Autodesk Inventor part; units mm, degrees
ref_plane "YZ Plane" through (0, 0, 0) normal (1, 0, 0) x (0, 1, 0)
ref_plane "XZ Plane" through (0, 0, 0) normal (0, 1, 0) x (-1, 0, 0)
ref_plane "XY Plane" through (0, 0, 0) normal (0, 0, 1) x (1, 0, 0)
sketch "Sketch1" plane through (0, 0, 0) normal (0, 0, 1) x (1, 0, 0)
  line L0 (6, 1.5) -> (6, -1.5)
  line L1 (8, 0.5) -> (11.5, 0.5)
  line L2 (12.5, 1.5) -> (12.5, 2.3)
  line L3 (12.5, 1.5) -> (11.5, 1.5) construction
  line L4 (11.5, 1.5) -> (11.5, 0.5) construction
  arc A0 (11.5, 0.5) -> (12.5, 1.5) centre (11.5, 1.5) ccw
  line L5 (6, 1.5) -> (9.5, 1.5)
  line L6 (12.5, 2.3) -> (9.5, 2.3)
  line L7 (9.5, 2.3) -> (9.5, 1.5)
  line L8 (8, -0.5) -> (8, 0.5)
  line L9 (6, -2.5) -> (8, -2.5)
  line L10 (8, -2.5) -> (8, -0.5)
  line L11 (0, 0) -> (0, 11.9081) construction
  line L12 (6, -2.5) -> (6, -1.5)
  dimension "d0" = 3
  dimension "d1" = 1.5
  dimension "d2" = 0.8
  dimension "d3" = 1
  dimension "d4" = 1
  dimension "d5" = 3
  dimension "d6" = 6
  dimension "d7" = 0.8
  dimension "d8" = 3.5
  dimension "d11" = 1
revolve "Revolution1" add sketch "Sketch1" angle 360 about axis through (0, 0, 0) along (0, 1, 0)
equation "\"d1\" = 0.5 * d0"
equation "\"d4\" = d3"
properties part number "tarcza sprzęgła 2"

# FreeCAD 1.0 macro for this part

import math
import FreeCAD as App
import Part
import Sketcher
Q = App.Units.Quantity

doc = App.newDocument("Part")
body = doc.addObject("PartDesign::Body", "Body")

sketch1 = body.newObject("Sketcher::SketchObject", "Sketch")
sketch1.AttachmentSupport = (doc.getObject("XY_Plane"), [""])
sketch1.MapMode = "FlatFace"
sketch1.addGeometry([
    Part.LineSegment(App.Vector(9.5, 1.5, 0), App.Vector(6, 1.5, 0)),
    Part.LineSegment(App.Vector(6, 1.5, 0), App.Vector(6, -2.5, 0)),
    Part.LineSegment(App.Vector(6, -2.5, 0), App.Vector(8, -2.5, 0)),
    Part.LineSegment(App.Vector(8, -2.5, 0), App.Vector(8, 0.5, 0)),
    Part.LineSegment(App.Vector(8, 0.5, 0), App.Vector(11.5, 0.5, 0)),
    Part.ArcOfCircle(Part.Circle(App.Vector(11.5, 1.5, 0), App.Vector(0, 0, 1), 1), math.radians(-90), math.radians(0)),
    Part.LineSegment(App.Vector(12.5, 1.5, 0), App.Vector(12.5, 2.3, 0)),
    Part.LineSegment(App.Vector(12.5, 2.3, 0), App.Vector(9.5, 2.3, 0)),
    Part.LineSegment(App.Vector(9.5, 2.3, 0), App.Vector(9.5, 1.5, 0)),
], False)
sketch1.addConstraint([
    Sketcher.Constraint("Coincident", 0, 2, 1, 1),
    Sketcher.Constraint("Coincident", 1, 2, 2, 1),
    Sketcher.Constraint("Coincident", 2, 2, 3, 1),
    Sketcher.Constraint("Coincident", 3, 2, 4, 1),
    Sketcher.Constraint("Tangent", 4, 2, 5, 1),
    Sketcher.Constraint("Tangent", 5, 2, 6, 1),
    Sketcher.Constraint("Coincident", 6, 2, 7, 1),
    Sketcher.Constraint("Coincident", 7, 2, 8, 1),
    Sketcher.Constraint("Coincident", 8, 2, 0, 1),
    Sketcher.Constraint("Horizontal", 0),
    Sketcher.Constraint("Vertical", 1),
    Sketcher.Constraint("Horizontal", 2),
    Sketcher.Constraint("Vertical", 3),
    Sketcher.Constraint("Horizontal", 4),
    Sketcher.Constraint("Vertical", 6),
    Sketcher.Constraint("Horizontal", 7),
    Sketcher.Constraint("Vertical", 8),
    Sketcher.Constraint("Horizontal", 5, 3, 0, 2),
    Sketcher.Constraint("Equal", 0, 4),
    Sketcher.Constraint("Equal", 7, 3),
    Sketcher.Constraint("Radius", 5, Q("1 mm")),
    Sketcher.Constraint("DistanceX", 7, 2, 7, 1, Q("3 mm")),
    Sketcher.Constraint("DistanceX", 0, 2, 0, 1, Q("3.5 mm")),
    Sketcher.Constraint("DistanceY", 6, 1, 6, 2, Q("0.8 mm")),
    Sketcher.Constraint("DistanceX", -1, 1, 0, 2, Q("6 mm")),
    Sketcher.Constraint("DistanceY", -1, 1, 5, 3, Q("1.5 mm")),
])
revolution = body.newObject("PartDesign::Revolution", "Revolution")
revolution.Profile = sketch1
revolution.ReferenceAxis = (sketch1, ["V_Axis"])
revolution.Angle = 360

doc.recompute()
